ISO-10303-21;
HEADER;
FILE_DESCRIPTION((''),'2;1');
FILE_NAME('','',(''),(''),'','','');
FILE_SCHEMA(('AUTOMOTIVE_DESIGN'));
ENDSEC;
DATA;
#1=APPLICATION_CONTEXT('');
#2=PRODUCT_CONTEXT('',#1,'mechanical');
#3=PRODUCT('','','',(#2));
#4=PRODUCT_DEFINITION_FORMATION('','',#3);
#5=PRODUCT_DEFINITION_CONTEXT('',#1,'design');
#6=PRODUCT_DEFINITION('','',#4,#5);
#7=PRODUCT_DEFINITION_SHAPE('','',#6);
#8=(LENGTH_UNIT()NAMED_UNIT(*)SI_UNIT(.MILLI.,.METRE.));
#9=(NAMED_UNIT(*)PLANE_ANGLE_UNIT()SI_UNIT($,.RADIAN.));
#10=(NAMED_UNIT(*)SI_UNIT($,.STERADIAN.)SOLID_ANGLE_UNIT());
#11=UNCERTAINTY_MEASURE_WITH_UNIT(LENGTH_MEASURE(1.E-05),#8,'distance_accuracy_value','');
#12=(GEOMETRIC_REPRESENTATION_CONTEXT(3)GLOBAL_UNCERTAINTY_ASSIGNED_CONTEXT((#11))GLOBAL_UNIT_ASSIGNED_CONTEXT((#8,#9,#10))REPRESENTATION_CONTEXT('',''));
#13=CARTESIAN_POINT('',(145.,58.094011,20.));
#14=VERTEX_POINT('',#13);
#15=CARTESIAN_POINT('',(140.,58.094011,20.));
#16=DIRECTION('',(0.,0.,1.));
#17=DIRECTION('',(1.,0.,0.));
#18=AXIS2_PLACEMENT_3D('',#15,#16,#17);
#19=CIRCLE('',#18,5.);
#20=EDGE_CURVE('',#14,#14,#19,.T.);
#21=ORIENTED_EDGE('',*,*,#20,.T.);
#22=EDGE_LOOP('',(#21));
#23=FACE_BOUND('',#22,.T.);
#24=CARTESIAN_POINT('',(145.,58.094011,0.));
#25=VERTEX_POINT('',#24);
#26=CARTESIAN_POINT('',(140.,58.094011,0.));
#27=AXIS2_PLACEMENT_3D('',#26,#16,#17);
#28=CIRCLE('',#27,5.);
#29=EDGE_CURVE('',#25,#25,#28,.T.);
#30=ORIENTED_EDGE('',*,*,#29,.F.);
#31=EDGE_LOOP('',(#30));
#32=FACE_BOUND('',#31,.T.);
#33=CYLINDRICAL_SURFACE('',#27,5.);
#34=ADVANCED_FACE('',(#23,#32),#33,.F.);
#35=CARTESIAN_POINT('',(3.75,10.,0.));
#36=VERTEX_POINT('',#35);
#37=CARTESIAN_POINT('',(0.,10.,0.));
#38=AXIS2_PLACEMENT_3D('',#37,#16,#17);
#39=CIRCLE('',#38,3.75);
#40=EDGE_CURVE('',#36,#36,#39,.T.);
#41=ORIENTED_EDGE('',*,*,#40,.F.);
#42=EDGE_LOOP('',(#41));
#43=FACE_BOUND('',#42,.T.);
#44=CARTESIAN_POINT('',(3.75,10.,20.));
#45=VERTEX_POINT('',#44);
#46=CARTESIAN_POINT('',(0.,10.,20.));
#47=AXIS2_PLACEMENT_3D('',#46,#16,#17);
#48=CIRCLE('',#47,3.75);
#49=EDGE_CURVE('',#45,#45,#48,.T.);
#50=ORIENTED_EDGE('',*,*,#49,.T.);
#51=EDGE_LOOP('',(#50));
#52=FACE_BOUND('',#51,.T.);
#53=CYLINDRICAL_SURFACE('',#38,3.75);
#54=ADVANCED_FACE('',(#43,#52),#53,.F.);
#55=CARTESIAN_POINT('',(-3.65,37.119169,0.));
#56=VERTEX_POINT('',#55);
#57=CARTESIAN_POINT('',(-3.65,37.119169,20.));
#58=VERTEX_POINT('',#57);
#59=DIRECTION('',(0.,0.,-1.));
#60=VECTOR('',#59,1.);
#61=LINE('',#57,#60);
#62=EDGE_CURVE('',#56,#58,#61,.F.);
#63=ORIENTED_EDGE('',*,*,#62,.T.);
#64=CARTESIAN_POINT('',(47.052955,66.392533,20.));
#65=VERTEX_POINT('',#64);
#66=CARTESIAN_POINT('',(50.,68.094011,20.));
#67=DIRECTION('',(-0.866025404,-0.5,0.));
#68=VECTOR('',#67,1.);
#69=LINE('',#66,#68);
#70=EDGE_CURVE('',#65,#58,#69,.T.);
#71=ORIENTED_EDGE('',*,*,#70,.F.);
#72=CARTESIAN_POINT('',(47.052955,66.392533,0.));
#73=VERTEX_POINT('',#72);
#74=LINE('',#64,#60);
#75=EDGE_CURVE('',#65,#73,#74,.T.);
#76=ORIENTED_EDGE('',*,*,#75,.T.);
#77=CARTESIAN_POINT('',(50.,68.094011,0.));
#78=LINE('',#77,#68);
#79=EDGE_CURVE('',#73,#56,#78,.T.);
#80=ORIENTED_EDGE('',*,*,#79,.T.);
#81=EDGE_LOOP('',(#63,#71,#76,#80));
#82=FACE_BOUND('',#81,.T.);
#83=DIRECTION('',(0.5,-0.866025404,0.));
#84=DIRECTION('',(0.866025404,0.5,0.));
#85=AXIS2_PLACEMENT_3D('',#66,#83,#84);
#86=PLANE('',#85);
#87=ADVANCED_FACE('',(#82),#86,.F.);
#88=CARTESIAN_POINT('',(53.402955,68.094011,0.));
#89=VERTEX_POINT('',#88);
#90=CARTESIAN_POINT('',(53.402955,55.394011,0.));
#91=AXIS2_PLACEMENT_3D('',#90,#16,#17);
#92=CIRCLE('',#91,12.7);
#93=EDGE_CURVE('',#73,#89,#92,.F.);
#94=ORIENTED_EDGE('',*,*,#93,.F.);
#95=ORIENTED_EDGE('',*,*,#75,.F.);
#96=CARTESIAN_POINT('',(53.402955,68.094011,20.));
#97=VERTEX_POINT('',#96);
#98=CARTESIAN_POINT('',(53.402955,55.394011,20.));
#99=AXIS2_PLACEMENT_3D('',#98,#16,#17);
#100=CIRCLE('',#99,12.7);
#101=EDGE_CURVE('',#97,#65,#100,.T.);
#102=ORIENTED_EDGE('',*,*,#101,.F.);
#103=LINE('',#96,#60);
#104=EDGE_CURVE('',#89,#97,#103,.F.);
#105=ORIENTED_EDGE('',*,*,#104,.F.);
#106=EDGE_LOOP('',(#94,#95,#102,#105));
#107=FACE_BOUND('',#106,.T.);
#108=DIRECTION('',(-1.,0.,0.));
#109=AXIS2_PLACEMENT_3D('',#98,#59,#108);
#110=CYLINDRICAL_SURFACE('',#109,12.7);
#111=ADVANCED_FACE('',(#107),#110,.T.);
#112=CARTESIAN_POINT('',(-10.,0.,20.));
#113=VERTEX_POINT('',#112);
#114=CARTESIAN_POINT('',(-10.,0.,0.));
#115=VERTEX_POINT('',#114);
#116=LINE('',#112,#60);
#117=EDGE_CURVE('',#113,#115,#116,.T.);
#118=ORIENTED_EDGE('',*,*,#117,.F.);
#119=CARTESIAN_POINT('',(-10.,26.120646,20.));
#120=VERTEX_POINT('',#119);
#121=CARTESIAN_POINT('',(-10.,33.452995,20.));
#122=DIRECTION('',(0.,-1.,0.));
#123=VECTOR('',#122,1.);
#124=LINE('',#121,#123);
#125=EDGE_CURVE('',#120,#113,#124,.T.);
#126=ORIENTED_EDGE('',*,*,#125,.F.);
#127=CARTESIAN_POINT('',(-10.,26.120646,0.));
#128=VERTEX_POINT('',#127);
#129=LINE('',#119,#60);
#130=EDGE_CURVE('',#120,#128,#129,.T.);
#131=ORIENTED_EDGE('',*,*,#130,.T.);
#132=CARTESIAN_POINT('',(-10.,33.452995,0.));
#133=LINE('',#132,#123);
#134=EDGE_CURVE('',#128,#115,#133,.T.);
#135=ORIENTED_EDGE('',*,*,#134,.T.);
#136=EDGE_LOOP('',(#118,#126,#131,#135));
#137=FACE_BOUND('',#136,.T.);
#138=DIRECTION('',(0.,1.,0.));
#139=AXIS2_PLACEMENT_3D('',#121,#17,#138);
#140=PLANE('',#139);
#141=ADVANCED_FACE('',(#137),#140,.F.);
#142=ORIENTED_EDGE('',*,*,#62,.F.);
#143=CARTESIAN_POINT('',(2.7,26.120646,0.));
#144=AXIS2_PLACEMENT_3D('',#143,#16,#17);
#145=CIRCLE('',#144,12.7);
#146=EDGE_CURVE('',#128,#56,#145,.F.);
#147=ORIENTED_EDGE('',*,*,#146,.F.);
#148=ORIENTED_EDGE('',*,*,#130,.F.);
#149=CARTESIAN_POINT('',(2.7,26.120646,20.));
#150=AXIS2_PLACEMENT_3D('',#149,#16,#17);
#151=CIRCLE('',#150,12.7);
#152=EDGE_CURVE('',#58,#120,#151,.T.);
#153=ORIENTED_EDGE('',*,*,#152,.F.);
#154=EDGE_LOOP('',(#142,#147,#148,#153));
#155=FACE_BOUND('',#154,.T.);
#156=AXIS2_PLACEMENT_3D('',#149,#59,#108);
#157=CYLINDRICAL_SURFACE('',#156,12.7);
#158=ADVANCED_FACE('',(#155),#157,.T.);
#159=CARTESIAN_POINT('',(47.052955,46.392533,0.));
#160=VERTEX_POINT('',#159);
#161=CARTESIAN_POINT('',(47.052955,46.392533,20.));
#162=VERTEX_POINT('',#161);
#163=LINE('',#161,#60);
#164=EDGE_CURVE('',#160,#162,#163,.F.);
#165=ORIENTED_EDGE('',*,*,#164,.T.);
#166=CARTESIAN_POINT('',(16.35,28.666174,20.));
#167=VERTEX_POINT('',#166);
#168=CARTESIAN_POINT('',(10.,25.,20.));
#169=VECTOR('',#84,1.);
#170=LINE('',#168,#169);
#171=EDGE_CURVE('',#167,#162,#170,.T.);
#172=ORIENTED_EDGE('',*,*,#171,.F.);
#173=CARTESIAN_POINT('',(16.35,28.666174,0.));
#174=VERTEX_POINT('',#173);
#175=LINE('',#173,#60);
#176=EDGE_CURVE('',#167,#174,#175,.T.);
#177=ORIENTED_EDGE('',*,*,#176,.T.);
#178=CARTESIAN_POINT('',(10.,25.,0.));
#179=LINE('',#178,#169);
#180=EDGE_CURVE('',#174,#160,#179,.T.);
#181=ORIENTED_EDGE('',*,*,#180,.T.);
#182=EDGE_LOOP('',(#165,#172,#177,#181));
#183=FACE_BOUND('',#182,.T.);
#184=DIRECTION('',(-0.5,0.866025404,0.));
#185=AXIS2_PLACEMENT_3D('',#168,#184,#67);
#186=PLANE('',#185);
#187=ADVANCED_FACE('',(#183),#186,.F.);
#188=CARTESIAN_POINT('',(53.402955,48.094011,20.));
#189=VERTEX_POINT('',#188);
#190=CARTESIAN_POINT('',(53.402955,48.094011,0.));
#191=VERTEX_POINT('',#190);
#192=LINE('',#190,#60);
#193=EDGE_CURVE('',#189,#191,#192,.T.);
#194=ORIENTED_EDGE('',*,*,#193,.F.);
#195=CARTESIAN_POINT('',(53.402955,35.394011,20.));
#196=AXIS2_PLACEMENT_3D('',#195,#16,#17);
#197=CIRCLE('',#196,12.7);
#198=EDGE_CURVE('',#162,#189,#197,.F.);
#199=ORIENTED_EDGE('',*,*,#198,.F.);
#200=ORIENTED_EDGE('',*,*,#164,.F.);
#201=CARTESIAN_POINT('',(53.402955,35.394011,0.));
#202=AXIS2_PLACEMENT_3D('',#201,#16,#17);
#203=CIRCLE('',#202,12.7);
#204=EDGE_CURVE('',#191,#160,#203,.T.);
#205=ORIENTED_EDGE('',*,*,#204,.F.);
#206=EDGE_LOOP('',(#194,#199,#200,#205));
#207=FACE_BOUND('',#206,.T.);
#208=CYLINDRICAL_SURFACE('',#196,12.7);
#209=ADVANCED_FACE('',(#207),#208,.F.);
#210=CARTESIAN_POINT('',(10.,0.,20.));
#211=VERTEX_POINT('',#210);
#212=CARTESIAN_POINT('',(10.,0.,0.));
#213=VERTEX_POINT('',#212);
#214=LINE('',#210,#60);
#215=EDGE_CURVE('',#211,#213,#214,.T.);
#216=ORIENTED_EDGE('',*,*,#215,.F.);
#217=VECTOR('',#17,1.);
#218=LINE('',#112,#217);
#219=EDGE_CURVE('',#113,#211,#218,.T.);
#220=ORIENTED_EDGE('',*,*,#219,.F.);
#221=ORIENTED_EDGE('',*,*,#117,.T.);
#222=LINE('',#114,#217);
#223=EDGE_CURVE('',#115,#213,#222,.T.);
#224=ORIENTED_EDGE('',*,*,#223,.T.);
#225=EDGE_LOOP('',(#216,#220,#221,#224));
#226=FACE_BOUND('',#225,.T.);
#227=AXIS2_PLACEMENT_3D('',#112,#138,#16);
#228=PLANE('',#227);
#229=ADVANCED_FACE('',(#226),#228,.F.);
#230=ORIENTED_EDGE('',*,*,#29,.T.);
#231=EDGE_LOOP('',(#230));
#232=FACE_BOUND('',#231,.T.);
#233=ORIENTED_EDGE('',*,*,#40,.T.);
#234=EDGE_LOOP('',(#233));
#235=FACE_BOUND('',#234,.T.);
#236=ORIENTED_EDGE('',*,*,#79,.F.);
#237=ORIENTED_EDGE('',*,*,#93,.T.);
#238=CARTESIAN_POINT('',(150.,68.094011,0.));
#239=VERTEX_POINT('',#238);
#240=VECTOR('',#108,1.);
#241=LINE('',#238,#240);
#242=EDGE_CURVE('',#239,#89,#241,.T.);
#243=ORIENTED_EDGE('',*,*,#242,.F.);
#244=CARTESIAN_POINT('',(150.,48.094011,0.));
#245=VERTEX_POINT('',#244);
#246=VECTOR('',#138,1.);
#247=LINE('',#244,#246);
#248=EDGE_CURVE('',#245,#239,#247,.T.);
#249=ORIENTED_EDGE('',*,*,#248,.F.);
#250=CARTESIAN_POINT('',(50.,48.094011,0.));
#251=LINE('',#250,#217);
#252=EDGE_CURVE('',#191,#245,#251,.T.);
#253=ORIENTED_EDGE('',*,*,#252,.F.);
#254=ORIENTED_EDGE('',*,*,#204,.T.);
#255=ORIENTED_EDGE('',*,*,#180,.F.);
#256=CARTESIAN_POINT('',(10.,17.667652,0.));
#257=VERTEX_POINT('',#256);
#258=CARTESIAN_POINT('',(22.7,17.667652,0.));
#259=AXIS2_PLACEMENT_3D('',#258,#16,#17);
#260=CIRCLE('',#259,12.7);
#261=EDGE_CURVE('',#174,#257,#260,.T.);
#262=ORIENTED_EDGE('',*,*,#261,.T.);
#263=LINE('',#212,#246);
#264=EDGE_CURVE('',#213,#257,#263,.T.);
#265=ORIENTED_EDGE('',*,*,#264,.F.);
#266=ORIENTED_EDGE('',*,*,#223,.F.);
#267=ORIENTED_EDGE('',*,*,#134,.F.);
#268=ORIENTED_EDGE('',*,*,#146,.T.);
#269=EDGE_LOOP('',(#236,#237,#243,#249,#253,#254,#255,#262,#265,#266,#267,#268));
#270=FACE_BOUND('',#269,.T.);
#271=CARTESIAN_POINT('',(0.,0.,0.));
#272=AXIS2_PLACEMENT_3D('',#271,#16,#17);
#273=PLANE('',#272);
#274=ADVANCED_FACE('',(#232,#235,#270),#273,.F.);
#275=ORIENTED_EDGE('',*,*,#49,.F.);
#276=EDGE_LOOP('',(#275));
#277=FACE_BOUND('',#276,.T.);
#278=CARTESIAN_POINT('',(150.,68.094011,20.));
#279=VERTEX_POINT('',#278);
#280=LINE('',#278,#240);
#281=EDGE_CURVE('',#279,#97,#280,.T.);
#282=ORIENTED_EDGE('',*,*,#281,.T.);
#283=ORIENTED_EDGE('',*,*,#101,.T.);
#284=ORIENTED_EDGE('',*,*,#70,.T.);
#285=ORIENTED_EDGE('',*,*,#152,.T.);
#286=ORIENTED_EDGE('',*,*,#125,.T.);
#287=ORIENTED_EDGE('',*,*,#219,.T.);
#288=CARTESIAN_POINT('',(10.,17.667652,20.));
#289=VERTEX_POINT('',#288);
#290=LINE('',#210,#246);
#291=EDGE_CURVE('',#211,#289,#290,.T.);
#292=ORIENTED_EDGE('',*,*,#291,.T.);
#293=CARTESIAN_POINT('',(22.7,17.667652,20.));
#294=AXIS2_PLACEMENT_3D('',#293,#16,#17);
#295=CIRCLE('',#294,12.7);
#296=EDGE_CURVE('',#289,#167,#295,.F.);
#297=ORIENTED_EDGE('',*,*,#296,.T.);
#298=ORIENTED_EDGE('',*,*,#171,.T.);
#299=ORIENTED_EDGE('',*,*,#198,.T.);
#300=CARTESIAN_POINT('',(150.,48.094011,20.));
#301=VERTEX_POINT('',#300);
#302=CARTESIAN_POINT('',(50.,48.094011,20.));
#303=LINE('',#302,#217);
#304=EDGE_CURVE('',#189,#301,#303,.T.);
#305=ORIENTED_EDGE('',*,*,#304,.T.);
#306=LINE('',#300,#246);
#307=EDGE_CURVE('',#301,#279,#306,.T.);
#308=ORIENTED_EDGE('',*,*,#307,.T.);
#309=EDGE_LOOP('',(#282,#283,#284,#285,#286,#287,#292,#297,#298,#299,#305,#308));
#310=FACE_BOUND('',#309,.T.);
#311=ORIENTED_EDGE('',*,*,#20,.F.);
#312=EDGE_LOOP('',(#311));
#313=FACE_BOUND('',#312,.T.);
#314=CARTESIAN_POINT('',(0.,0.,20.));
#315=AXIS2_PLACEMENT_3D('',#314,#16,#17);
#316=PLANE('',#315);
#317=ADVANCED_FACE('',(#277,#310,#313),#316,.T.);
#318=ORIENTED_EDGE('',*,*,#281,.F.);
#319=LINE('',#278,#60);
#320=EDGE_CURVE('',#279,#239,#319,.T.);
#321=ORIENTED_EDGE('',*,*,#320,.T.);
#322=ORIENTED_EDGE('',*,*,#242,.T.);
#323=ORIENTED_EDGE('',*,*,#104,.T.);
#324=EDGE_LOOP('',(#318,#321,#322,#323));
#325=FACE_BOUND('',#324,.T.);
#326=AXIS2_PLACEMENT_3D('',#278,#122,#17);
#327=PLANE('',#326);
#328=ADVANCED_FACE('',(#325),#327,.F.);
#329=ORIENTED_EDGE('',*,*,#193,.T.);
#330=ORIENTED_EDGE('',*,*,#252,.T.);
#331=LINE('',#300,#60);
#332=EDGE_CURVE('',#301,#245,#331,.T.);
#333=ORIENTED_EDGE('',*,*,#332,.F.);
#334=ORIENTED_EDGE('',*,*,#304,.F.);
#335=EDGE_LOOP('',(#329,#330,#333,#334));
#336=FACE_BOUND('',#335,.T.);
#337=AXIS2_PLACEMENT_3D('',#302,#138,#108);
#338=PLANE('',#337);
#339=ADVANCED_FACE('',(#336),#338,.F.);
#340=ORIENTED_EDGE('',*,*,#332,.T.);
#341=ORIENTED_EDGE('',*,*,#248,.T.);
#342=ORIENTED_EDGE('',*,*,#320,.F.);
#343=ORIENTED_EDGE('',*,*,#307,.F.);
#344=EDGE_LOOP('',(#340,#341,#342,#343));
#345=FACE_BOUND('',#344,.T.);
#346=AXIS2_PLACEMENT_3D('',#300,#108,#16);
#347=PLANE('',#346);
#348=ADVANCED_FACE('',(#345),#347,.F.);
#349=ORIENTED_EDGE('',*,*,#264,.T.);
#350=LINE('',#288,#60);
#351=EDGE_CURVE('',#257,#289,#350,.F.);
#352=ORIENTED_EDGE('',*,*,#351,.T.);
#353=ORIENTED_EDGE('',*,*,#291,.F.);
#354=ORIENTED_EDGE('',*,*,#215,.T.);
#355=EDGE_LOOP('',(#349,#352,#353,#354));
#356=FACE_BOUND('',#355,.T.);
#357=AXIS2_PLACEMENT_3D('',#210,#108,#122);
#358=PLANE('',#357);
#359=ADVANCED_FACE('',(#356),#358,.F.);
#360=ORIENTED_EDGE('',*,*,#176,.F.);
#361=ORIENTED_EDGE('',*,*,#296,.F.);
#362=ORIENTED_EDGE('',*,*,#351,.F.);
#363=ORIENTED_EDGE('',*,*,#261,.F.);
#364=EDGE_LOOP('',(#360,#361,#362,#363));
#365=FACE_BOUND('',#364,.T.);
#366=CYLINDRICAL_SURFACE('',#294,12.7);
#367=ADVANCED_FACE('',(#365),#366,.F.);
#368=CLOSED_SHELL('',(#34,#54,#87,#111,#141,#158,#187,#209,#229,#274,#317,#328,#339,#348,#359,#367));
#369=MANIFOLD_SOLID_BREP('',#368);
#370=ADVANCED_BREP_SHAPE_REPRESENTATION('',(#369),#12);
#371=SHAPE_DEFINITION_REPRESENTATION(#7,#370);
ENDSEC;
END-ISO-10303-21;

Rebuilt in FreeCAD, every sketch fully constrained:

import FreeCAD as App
import Part
import Sketcher
from FreeCAD import Vector
Q = App.Units.Quantity


def edges_at(feature, points):
    """Names of the edges that pass closest to the given points."""
    edges = feature.Shape.Edges
    near = lambda p: min(range(len(edges)), key=lambda i: edges[i].distToShape(Part.Vertex(*p))[0])
    return sorted({f"Edge{near(p) + 1}" for p in points})

doc = App.newDocument("Part")
body = doc.addObject("PartDesign::Body", "Body")

# Sketch on XY plane
sketch1 = doc.addObject("Sketcher::SketchObject", "Sketch")
body.addObject(sketch1)
sketch1.AttachmentSupport = (doc.XY_Plane, [""])
sketch1.MapMode = "FlatFace"
sketch1.addGeometry(Part.LineSegment(Vector(10, 0, 0), Vector(10, 25, 0)), False)
sketch1.addGeometry(Part.LineSegment(Vector(10, 25, 0), Vector(50, 48.094011, 0)), False)
sketch1.addGeometry(Part.LineSegment(Vector(50, 48.094011, 0), Vector(150, 48.094011, 0)), False)
sketch1.addGeometry(Part.LineSegment(Vector(150, 48.094011, 0), Vector(150, 68.094011, 0)), False)
sketch1.addGeometry(Part.LineSegment(Vector(150, 68.094011, 0), Vector(50, 68.094011, 0)), False)
sketch1.addGeometry(Part.LineSegment(Vector(50, 68.094011, 0), Vector(-10, 33.452995, 0)), False)
sketch1.addGeometry(Part.LineSegment(Vector(-10, 33.452995, 0), Vector(-10, 0, 0)), False)
sketch1.addGeometry(Part.LineSegment(Vector(-10, 0, 0), Vector(10, 0, 0)), False)
sketch1.addConstraint(Sketcher.Constraint("Coincident", 0, 2, 1, 1))
sketch1.addConstraint(Sketcher.Constraint("Coincident", 1, 2, 2, 1))
sketch1.addConstraint(Sketcher.Constraint("Coincident", 2, 2, 3, 1))
sketch1.addConstraint(Sketcher.Constraint("Coincident", 3, 2, 4, 1))
sketch1.addConstraint(Sketcher.Constraint("Coincident", 4, 2, 5, 1))
sketch1.addConstraint(Sketcher.Constraint("Coincident", 5, 2, 6, 1))
sketch1.addConstraint(Sketcher.Constraint("Coincident", 6, 2, 7, 1))
sketch1.addConstraint(Sketcher.Constraint("Coincident", 7, 2, 0, 1))
sketch1.addConstraint(Sketcher.Constraint("Vertical", 0))
sketch1.addConstraint(Sketcher.Constraint("Horizontal", 2))
sketch1.addConstraint(Sketcher.Constraint("Vertical", 3))
sketch1.addConstraint(Sketcher.Constraint("Horizontal", 4))
sketch1.addConstraint(Sketcher.Constraint("Vertical", 6))
sketch1.addConstraint(Sketcher.Constraint("Horizontal", 7))
sketch1.addConstraint(Sketcher.Constraint("Symmetric", 6, 2, 7, 2, -1, 1))
sketch1.addConstraint(Sketcher.Constraint("Parallel", 1, 5))
sketch1.addConstraint(Sketcher.Constraint("Vertical", 1, 2, 4, 2))
sketch1.addConstraint(Sketcher.Constraint("Equal", 7, 3))
sketch1.addConstraint(Sketcher.Constraint("DistanceX", 2, 1, 2, 2, Q("100 mm")))
sketch1.addConstraint(Sketcher.Constraint("DistanceX", 7, 1, 7, 2, Q("20 mm")))
sketch1.addConstraint(Sketcher.Constraint("DistanceY", 0, 1, 0, 2, Q("25 mm")))
sketch1.addConstraint(Sketcher.Constraint("Angle", 1, Q("30 deg")))
sketch1.addConstraint(Sketcher.Constraint("DistanceX", -1, 1, 1, 2, Q("50 mm")))
pad1 = doc.addObject("PartDesign::Pad", "Pad")
body.addObject(pad1)
pad1.Profile = sketch1
pad1.Length = 20
doc.recompute()

fillet = doc.addObject("PartDesign::Fillet", "Fillet")
body.addObject(fillet)
fillet.Base = (pad1, edges_at(pad1, [
    (-10, 33.453, 10),
    (50, 68.094, 10),
    (50, 48.094, 10),
    (10, 25, 10),
]))
fillet.Radius = 12.7

# Sketch on XY plane
sketch2 = doc.addObject("Sketcher::SketchObject", "Sketch001")
body.addObject(sketch2)
sketch2.AttachmentSupport = (doc.XY_Plane, [""])
sketch2.MapMode = "FlatFace"
sketch2.AttachmentOffset = App.Placement(Vector(0, 0, 20), App.Rotation())
sketch2.addGeometry(Part.Circle(Vector(140, 58.094011, 0), Vector(0, 0, 1), 5), False)
sketch2.addGeometry(Part.Circle(Vector(0, 10, 0), Vector(0, 0, 1), 3.75), False)
sketch2.addConstraint(Sketcher.Constraint("PointOnObject", 1, 3, -2))
sketch2.addConstraint(Sketcher.Constraint("Diameter", 0, Q("10 mm")))
sketch2.addConstraint(Sketcher.Constraint("Diameter", 1, Q("7.5 mm")))
sketch2.addConstraint(Sketcher.Constraint("DistanceX", -1, 1, 0, 3, Q("140 mm")))
sketch2.addConstraint(Sketcher.Constraint("DistanceY", -1, 1, 1, 3, Q("10 mm")))
sketch2.addConstraint(Sketcher.Constraint("DistanceY", -1, 1, 0, 3, Q("58.094011 mm")))
pocket1 = doc.addObject("PartDesign::Pocket", "Pocket")
body.addObject(pocket1)
pocket1.Profile = sketch2
pocket1.Type = "ThroughAll"

doc.recompute()
